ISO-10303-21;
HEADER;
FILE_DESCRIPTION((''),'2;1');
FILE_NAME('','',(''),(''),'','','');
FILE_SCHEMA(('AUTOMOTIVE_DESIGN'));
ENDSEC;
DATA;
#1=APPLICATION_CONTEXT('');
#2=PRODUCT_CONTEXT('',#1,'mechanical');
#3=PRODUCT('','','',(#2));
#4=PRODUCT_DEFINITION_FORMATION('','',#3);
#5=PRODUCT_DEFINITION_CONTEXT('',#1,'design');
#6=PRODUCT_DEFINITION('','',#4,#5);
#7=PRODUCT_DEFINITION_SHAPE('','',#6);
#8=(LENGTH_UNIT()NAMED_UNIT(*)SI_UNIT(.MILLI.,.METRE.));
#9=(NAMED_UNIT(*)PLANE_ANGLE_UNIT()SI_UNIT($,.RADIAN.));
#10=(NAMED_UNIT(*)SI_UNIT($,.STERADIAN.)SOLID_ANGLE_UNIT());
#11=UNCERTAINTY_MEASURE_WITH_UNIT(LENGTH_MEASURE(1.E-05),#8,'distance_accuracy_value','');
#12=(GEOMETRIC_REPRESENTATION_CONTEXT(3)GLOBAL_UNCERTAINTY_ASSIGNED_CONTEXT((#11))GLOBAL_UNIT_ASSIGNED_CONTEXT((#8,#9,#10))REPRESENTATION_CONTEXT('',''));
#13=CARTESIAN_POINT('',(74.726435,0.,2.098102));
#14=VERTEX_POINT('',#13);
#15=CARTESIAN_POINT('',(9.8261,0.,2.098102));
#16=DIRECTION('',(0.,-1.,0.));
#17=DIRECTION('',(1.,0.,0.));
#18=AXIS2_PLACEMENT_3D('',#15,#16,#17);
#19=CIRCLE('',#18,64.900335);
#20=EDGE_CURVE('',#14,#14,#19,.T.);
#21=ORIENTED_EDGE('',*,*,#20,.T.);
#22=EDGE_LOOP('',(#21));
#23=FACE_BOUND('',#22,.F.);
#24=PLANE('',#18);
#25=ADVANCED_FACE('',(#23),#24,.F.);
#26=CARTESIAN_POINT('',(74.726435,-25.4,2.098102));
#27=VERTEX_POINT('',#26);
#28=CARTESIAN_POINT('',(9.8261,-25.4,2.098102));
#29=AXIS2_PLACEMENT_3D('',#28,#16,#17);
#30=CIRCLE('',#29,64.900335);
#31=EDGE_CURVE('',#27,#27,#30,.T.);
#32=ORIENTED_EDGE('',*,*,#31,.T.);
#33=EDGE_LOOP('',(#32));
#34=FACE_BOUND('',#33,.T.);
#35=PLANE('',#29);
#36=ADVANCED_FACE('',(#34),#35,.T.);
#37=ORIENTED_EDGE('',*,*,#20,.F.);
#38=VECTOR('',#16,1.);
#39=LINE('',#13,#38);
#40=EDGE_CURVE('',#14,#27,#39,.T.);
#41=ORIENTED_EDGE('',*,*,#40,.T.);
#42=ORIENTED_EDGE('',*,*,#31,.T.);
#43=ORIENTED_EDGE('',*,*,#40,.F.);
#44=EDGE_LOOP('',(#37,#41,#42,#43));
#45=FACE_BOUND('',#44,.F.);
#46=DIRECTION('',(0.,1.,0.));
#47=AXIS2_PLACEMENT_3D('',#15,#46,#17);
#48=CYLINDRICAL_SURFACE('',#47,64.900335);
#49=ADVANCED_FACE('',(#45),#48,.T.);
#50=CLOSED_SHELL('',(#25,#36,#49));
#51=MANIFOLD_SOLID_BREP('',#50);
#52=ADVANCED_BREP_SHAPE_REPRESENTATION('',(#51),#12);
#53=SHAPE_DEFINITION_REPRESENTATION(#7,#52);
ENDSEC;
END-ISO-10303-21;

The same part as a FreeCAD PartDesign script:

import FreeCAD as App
import Part
import Sketcher

V = App.Vector
Q = App.Units.Quantity

doc = App.newDocument("Part")
body = doc.addObject("PartDesign::Body", "Body")

# Sketch on XZ plane
sketch1 = body.newObject("Sketcher::SketchObject", "Sketch")
sketch1.AttachmentSupport = (doc.getObject("XZ_Plane"), [""])
sketch1.MapMode = "FlatFace"
sketch1.addGeometry(Part.Circle(V(10, 2, 0), V(0, 0, 1), 65), False)
sketch1.addConstraint([
    Sketcher.Constraint("Diameter", 0, 129.800669),
    Sketcher.Constraint("DistanceX", -1, 1, 0, 3, 9.8261),
    Sketcher.Constraint("DistanceY", -1, 1, 0, 3, 2.098102),
])
pad1 = body.newObject("PartDesign::Pad", "Pad")
pad1.Profile = sketch1
pad1.Length = Q("1 in")

doc.recompute()
